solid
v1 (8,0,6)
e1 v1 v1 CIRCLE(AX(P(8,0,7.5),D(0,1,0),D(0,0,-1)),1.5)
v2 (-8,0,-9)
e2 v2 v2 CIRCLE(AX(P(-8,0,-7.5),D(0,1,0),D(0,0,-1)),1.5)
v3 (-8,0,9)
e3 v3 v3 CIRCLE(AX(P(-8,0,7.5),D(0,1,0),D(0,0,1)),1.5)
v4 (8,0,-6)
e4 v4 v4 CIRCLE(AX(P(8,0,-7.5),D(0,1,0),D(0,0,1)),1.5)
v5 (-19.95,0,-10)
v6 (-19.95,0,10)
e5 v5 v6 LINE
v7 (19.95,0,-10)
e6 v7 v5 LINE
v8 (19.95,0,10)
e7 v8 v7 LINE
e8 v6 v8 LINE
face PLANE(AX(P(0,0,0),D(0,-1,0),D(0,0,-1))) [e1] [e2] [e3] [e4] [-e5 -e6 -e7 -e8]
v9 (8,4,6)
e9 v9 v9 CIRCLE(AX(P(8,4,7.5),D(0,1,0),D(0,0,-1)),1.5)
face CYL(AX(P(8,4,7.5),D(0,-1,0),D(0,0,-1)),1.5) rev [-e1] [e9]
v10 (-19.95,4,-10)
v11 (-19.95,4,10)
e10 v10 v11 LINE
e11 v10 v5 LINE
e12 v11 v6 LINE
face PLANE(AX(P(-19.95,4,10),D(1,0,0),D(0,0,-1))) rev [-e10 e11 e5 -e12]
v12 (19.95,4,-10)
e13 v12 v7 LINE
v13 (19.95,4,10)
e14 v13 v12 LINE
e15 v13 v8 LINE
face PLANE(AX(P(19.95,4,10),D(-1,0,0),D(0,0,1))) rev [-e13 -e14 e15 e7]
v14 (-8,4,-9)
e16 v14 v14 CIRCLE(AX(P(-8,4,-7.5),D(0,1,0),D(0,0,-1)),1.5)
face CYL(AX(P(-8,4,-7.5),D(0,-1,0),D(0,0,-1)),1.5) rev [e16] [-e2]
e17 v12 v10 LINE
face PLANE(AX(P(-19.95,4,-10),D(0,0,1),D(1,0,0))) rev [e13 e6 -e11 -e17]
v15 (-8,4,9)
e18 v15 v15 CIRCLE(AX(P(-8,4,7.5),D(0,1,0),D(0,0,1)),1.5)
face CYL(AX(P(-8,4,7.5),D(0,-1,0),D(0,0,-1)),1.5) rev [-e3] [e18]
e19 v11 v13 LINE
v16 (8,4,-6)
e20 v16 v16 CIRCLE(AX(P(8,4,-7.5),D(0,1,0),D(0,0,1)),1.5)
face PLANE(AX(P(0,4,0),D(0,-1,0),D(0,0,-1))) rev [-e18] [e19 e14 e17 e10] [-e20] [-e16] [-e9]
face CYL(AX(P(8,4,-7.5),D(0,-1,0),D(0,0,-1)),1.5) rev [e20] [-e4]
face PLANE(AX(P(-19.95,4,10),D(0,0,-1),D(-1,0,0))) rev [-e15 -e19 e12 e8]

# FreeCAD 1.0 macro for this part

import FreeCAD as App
import Part
import Sketcher


def add_polygon(sketch, points):
    """Adds a closed chain of lines whose ends are joined by coincident constraints."""
    first, n = sketch.GeometryCount, len(points)
    for a, b in zip(points, points[1:] + points[:1]):
        sketch.addGeometry(Part.LineSegment(App.Vector(*a, 0), App.Vector(*b, 0)), False)
    for i in range(n):
        sketch.addConstraint(Sketcher.Constraint("Coincident", first + i, 2, first + (i + 1) % n, 1))

doc = App.newDocument("Part")
params = doc.addObject("Spreadsheet::Sheet", "Params")
for row, (alias, value) in enumerate([
    ("sketch1_diameter", "3 mm"),
    ("sketch1_height", "20 mm"),
    ("sketch1_width", "39.9 mm"),
    ("pad1_length", "4 mm"),
], start=1):
    params.set(f"A{row}", alias)
    params.set(f"B{row}", "=" + value)
    params.setAlias(f"B{row}", alias)

body = doc.addObject("PartDesign::Body", "Body")

sketch1 = doc.addObject("Sketcher::SketchObject", "Sketch")
body.addObject(sketch1)
sketch1.AttachmentSupport = (doc.XZ_Plane, [""])
sketch1.MapMode = "FlatFace"
add_polygon(sketch1, [(-19.9, -10), (-19.9, 10), (19.9, 10), (19.9, -10)])
sketch1.addGeometry(Part.Circle(App.Vector(-8, 7.5, 0), App.Vector(0, 0, 1), 1.5), False)
sketch1.addGeometry(Part.Circle(App.Vector(8, 7.5, 0), App.Vector(0, 0, 1), 1.5), False)
sketch1.addGeometry(Part.Circle(App.Vector(-8, -7.5, 0), App.Vector(0, 0, 1), 1.5), False)
sketch1.addGeometry(Part.Circle(App.Vector(8, -7.5, 0), App.Vector(0, 0, 1), 1.5), False)
sketch1.addConstraint([
    Sketcher.Constraint("Vertical", 0),
    Sketcher.Constraint("Horizontal", 1),
    Sketcher.Constraint("Vertical", 2),
    Sketcher.Constraint("Horizontal", 3),
    Sketcher.Constraint("Equal", 4, 5),
    Sketcher.Constraint("Equal", 5, 6),
    Sketcher.Constraint("Equal", 6, 7),
    Sketcher.Constraint("Symmetric", 5, 3, 6, 3, -1, 1),
    Sketcher.Constraint("Symmetric", 4, 3, 7, 3, -1, 1),
    Sketcher.Constraint("Symmetric", 0, 2, 2, 2, -1, 1),
    Sketcher.Constraint("Symmetric", 4, 3, 5, 3, -2),
    Sketcher.Constraint("Diameter", 4, 3.0),
    Sketcher.Constraint("DistanceY", 0, 1, 0, 2, 20.0),
    Sketcher.Constraint("DistanceX", 1, 1, 1, 2, 39.9),
    Sketcher.Constraint("DistanceX", 4, 3, -1, 1, 8.0),
    Sketcher.Constraint("DistanceY", 6, 3, 4, 3, 15.0),
])
sketch1.setExpression("Constraints[15]", "Params.sketch1_diameter")
sketch1.setExpression("Constraints[16]", "Params.sketch1_height")
sketch1.setExpression("Constraints[17]", "Params.sketch1_width")
pad1 = doc.addObject("PartDesign::Pad", "Pad")
body.addObject(pad1)
pad1.Profile = sketch1
pad1.setExpression("Length", "Params.pad1_length")
pad1.Reversed = True

doc.recompute()
